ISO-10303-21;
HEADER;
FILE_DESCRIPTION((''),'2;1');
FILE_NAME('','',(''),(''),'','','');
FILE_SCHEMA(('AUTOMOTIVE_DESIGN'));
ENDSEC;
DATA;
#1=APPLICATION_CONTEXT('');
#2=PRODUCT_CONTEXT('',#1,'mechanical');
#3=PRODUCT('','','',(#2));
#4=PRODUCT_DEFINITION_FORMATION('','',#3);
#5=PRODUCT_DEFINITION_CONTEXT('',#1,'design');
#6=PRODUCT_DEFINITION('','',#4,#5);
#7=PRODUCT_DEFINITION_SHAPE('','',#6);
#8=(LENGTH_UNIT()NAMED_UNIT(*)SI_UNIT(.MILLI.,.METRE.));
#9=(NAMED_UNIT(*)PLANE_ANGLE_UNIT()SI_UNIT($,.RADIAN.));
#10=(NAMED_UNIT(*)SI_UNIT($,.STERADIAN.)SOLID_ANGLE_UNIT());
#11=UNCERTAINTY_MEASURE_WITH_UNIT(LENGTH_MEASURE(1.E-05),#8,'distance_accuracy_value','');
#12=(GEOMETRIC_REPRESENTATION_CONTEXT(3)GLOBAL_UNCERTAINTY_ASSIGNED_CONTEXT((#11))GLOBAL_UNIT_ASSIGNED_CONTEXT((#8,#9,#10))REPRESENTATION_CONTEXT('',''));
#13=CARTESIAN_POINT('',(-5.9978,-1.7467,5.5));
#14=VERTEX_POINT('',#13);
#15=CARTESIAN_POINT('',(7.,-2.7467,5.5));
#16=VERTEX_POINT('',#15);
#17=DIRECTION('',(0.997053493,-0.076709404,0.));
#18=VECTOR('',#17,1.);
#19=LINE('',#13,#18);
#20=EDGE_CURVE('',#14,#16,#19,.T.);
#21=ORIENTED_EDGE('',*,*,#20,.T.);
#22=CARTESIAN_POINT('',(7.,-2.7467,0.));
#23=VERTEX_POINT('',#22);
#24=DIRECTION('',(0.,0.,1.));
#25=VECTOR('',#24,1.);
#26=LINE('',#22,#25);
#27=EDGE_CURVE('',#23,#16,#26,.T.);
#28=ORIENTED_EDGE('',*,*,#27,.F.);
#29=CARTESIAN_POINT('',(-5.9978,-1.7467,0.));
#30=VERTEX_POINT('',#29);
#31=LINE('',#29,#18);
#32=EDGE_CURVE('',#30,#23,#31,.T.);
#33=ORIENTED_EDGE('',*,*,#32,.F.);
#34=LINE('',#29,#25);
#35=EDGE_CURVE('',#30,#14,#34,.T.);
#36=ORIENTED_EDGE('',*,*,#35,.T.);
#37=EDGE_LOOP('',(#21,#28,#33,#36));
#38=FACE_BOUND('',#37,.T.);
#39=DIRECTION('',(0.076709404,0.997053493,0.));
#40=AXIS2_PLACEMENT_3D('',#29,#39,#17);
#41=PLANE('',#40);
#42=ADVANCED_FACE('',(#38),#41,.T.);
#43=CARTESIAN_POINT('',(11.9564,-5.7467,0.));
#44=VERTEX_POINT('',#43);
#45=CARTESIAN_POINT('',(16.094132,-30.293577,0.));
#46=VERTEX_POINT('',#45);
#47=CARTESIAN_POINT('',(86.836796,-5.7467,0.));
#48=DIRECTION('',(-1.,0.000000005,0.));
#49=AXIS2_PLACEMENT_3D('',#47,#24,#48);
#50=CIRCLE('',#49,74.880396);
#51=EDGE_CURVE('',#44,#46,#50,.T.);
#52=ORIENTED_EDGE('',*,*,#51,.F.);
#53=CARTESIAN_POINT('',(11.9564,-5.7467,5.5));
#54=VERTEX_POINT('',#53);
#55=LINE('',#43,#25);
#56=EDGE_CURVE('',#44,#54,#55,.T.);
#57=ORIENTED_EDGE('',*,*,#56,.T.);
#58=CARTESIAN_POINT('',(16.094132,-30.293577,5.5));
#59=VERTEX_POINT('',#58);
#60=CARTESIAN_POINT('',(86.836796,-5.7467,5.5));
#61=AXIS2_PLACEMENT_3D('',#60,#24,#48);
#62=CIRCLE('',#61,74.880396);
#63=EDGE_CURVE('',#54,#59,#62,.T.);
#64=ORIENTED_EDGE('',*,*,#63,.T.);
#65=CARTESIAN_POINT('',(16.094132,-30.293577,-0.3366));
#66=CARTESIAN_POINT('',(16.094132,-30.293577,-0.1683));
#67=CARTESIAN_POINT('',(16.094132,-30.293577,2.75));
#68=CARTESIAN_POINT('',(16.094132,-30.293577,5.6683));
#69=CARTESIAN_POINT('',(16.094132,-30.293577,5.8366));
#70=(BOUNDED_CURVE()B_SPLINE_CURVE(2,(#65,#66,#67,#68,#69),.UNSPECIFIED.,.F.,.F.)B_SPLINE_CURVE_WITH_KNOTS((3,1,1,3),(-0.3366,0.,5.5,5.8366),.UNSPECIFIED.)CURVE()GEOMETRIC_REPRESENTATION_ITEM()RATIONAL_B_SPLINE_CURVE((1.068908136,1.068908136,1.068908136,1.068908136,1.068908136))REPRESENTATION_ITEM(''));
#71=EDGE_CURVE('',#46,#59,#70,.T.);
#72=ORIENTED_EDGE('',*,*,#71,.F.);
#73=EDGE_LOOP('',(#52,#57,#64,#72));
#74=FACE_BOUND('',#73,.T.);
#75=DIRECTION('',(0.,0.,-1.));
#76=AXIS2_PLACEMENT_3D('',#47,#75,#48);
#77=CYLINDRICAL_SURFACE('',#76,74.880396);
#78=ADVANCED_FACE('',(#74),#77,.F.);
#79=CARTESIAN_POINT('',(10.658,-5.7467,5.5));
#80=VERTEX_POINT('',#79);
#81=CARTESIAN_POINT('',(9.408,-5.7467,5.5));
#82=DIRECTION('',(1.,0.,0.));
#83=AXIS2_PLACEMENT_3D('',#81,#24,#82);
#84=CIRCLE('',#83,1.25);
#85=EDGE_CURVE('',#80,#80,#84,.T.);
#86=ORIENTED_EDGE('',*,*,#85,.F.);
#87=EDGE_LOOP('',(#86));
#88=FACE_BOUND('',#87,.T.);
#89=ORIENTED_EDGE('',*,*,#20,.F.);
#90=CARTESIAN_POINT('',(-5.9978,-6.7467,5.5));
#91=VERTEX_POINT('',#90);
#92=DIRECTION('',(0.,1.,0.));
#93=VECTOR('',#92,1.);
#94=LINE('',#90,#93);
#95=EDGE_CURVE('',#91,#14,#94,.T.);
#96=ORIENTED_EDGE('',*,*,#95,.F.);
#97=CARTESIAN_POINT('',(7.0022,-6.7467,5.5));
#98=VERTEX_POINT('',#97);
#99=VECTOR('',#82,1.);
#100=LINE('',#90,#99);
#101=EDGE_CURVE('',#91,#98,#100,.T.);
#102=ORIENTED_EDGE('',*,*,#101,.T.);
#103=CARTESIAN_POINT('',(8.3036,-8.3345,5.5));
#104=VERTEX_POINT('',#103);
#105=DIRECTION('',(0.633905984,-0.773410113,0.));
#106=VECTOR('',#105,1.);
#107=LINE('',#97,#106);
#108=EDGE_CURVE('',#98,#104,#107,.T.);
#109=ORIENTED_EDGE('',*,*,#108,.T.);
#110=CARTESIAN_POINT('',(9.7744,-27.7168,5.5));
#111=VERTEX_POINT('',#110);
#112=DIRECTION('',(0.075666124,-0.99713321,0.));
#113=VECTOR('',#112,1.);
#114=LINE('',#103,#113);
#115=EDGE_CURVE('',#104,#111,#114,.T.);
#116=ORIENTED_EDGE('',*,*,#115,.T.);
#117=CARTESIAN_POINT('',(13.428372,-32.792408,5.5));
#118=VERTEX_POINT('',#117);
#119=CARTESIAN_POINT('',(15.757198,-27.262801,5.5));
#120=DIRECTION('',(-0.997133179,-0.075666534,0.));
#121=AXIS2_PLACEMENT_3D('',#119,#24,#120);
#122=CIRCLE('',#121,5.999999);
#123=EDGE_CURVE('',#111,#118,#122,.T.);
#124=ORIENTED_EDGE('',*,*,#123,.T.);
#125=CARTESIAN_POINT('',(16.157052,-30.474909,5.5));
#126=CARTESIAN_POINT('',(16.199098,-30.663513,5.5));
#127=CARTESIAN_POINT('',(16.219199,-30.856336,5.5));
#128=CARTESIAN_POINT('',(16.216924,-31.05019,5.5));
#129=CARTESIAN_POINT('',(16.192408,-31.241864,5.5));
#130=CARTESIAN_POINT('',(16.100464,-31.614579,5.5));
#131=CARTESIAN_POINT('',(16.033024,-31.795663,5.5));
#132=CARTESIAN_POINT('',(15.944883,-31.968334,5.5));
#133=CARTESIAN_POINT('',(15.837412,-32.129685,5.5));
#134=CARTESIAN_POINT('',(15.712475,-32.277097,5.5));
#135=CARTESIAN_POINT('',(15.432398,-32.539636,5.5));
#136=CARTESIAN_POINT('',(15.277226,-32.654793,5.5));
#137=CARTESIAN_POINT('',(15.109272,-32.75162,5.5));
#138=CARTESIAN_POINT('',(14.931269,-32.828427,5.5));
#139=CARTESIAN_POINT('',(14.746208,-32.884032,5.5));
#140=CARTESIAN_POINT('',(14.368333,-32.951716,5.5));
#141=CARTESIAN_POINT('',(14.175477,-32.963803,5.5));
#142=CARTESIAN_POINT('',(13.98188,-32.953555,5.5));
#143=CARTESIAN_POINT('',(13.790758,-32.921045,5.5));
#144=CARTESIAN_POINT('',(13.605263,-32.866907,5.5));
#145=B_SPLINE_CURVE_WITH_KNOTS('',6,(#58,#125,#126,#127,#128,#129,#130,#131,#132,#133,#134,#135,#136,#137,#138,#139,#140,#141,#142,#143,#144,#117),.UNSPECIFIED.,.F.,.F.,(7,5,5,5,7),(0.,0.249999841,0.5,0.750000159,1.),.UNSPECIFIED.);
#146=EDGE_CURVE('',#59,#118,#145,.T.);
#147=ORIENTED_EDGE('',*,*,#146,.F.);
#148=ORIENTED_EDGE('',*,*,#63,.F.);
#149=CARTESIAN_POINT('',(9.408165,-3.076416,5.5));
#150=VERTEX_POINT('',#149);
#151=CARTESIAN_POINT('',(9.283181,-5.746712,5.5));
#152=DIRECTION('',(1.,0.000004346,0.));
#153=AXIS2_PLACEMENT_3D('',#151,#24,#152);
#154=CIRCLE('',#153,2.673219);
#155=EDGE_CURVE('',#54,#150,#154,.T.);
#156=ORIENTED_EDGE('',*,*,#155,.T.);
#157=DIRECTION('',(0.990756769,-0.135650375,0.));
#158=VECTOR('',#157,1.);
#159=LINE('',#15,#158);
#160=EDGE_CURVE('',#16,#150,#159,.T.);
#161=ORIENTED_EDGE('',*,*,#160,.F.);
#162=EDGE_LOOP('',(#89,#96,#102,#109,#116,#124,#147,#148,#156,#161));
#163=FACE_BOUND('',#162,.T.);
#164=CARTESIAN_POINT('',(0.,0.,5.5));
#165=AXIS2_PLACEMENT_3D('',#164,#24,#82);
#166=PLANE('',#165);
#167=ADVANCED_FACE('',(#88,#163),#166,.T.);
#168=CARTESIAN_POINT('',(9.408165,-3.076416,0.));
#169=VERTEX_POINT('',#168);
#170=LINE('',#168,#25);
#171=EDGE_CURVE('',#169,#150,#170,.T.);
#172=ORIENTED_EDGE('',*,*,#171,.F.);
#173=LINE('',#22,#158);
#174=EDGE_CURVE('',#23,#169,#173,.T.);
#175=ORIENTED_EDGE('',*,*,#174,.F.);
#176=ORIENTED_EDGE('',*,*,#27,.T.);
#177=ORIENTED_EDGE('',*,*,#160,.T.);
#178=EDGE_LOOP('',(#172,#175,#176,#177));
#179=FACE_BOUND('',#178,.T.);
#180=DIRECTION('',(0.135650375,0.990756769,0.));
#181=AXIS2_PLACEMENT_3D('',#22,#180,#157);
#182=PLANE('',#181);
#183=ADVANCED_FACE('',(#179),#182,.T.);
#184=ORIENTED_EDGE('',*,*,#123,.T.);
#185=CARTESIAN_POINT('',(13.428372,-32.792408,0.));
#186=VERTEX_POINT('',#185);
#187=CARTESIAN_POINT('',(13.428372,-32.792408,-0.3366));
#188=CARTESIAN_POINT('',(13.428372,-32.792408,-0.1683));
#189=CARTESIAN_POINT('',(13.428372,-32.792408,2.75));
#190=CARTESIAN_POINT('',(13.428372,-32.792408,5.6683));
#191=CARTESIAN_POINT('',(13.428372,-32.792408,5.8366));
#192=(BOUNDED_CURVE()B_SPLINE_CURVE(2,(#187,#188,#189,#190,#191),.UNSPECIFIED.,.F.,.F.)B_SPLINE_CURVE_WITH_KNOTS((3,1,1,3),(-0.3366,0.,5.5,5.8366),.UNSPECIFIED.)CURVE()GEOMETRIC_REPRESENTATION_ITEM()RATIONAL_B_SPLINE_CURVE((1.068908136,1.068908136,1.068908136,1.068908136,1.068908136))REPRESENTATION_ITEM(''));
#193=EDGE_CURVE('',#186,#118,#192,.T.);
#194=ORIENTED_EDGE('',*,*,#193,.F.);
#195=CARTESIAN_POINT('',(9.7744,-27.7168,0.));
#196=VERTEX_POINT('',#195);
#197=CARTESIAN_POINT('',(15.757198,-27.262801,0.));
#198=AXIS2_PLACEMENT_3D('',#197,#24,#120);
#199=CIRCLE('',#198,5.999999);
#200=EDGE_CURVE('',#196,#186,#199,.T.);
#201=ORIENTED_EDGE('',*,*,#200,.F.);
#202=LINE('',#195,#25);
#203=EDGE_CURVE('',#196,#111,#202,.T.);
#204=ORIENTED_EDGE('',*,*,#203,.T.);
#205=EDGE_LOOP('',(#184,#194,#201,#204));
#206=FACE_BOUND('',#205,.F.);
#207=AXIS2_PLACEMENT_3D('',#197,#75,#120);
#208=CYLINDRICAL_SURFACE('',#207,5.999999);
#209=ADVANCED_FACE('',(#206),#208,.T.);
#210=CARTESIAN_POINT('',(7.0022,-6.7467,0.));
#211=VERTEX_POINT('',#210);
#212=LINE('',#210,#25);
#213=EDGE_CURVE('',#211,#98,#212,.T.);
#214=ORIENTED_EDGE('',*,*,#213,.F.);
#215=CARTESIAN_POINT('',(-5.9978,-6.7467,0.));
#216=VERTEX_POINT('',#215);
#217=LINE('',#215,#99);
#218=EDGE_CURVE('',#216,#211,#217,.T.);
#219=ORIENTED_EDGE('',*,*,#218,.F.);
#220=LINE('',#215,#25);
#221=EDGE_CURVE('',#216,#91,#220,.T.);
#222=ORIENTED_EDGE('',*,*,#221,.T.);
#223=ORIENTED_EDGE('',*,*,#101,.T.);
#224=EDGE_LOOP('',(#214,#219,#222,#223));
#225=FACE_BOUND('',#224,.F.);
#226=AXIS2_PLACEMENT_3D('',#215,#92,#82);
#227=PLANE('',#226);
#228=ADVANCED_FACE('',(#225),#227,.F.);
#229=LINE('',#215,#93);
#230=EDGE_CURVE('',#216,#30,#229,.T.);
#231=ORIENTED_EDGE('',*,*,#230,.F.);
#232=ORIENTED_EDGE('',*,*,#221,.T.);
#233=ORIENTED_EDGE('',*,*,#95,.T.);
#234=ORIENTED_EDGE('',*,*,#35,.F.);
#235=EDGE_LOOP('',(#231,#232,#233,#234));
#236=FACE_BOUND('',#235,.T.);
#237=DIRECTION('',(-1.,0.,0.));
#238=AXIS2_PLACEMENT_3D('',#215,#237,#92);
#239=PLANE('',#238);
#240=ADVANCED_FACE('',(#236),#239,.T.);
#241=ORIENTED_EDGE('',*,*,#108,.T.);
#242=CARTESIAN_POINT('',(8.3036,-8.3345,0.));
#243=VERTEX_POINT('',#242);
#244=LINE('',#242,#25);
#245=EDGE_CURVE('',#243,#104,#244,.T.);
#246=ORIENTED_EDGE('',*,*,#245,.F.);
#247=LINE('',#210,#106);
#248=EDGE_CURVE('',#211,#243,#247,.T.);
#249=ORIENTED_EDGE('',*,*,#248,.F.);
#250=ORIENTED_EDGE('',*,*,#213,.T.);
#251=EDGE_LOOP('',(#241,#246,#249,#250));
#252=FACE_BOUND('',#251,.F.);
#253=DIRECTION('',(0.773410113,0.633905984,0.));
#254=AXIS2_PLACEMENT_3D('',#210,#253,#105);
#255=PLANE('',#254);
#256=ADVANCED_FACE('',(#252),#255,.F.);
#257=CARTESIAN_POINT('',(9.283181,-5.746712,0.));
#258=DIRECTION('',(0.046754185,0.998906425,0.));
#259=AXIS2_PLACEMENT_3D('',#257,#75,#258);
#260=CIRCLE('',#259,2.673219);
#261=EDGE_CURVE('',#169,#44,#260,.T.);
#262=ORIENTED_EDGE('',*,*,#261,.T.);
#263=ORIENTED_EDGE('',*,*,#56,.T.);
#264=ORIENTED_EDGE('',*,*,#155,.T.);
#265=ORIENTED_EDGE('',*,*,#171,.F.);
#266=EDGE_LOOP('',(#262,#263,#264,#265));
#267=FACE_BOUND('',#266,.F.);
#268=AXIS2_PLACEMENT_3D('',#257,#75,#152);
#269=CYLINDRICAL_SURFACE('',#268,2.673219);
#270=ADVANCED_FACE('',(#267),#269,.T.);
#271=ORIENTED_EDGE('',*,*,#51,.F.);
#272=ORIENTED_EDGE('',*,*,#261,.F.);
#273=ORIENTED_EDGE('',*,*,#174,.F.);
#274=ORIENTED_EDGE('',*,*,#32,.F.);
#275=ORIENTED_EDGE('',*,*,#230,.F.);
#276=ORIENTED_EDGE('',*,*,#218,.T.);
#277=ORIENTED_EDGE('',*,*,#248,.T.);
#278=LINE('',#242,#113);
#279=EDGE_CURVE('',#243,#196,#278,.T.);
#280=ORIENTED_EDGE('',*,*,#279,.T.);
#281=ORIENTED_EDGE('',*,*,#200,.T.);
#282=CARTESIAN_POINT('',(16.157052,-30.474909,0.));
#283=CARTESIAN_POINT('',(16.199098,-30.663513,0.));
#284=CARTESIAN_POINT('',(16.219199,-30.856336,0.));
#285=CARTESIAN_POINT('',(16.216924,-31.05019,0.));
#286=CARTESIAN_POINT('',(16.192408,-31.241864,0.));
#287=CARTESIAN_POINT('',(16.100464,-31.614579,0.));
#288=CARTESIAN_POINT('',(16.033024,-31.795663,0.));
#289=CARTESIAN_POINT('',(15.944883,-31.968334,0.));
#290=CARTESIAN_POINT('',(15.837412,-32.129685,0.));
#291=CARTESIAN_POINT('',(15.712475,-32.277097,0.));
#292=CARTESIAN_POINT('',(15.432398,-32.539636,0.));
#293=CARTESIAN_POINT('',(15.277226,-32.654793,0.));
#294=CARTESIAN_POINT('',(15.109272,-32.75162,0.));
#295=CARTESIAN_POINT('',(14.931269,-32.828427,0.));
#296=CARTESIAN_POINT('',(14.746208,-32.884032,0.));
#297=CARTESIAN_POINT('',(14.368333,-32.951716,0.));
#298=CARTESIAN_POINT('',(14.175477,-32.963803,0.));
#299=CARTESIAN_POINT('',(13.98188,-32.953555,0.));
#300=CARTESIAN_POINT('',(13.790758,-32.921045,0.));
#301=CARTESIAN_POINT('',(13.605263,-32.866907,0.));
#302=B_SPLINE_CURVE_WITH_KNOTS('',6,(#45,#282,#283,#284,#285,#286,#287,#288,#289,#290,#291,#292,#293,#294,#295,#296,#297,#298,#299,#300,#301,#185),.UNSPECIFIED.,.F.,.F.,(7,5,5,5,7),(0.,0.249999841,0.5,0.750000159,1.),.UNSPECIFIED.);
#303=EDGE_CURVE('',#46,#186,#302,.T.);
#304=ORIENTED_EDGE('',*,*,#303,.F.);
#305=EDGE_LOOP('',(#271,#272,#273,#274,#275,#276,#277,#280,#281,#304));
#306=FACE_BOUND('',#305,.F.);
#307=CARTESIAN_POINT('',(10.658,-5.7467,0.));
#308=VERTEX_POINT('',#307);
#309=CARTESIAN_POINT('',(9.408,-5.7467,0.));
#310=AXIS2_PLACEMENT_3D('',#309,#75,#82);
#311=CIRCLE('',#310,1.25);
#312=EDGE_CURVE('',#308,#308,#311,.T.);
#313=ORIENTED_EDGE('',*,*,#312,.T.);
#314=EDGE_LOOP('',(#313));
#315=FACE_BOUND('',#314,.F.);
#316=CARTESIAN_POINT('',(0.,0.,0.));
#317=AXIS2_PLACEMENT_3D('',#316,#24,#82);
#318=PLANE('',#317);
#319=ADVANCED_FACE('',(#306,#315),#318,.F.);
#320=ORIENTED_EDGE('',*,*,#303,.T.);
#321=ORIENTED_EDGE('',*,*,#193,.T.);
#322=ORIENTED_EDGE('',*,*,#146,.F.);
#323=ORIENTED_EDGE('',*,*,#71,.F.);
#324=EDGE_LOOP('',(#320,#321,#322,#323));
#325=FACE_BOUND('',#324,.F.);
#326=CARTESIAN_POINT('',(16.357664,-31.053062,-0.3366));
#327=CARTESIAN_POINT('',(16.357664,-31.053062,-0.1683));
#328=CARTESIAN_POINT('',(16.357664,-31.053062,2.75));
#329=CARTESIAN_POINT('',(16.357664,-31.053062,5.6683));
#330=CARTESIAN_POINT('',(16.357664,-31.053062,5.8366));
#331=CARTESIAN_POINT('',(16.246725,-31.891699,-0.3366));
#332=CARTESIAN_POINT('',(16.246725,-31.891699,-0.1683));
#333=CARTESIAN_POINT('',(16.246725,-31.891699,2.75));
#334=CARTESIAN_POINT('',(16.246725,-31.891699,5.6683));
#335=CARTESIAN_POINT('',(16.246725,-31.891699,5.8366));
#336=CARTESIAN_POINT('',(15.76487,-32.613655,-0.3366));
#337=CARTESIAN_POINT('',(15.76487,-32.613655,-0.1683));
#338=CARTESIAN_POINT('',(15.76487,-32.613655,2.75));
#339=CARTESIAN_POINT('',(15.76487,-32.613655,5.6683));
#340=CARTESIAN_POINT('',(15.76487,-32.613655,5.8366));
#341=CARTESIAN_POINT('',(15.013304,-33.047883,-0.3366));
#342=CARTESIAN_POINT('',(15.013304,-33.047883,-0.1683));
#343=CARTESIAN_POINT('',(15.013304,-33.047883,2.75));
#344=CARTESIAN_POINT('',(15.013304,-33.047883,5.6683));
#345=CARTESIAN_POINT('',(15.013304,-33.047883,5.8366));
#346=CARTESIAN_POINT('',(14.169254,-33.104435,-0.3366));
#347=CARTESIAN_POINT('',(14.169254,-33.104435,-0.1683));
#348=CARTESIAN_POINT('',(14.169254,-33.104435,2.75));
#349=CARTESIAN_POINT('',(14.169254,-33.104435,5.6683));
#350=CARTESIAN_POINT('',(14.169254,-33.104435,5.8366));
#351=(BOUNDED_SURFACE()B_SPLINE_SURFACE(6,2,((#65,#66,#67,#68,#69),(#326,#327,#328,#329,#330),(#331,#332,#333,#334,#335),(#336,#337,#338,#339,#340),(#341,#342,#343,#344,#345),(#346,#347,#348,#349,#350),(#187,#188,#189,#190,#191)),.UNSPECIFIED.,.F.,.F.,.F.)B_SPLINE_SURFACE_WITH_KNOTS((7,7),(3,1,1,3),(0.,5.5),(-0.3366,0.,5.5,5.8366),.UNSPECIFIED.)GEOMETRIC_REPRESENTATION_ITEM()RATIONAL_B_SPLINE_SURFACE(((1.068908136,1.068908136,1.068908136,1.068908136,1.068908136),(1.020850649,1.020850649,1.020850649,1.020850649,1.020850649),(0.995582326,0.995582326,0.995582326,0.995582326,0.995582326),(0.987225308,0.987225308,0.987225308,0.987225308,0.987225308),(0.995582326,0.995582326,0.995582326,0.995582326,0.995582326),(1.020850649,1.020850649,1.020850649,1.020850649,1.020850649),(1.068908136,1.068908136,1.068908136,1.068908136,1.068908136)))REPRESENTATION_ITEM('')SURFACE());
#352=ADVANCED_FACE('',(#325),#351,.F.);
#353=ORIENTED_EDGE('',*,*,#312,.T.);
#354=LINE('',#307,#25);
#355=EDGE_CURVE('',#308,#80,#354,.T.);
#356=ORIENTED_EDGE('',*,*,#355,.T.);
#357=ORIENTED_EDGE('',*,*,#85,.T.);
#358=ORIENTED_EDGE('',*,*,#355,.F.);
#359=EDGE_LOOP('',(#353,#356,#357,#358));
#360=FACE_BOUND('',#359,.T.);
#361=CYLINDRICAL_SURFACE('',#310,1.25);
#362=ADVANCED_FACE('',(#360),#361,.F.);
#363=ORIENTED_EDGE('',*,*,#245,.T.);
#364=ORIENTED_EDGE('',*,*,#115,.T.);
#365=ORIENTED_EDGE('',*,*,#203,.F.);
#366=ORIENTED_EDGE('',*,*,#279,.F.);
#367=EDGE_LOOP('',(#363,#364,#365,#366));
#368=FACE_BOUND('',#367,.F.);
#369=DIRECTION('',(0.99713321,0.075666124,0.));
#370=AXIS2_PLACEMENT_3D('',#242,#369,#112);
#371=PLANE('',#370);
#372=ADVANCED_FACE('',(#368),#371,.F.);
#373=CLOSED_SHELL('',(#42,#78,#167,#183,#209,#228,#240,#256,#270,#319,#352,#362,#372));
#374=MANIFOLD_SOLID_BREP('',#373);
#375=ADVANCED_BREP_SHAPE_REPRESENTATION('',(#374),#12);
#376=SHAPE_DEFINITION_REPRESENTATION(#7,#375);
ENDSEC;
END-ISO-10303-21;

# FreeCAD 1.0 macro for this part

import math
import FreeCAD as App
import Part
import Sketcher

V = App.Vector
Q = App.Units.Quantity


def edges_at(feature, points):
    """Names of the edges that pass closest to the given points."""
    edges = feature.Shape.Edges
    near = lambda p: min(range(len(edges)), key=lambda i: edges[i].distToShape(Part.Vertex(*p))[0])
    return sorted({f"Edge{near(p) + 1}" for p in points})

doc = App.newDocument("Part")
params = doc.addObject("Spreadsheet::Sheet", "Params")
for row, (alias, value) in enumerate([
    ("sketch1_radius", "6 mm"),
    ("sketch1_diameter", "2.5 mm"),
    ("sketch1_height", "5 mm"),
    ("sketch1_width", "13 mm"),
    ("pad1_length", "5.5 mm"),
    ("fillet_radius", "2 mm"),
], start=1):
    params.set(f"A{row}", alias)
    params.set(f"B{row}", "=" + value)
    params.setAlias(f"B{row}", alias)

body = doc.addObject("PartDesign::Body", "Body")

sketch1 = body.newObject("Sketcher::SketchObject", "Sketch")
sketch1.AttachmentSupport = (doc.getObject("XY_Plane"), [""])
sketch1.MapMode = "FlatFace"
sketch1.addGeometry([
    Part.ArcOfCircle(Part.Circle(V(86.8368, -5.7467, 0), V(0, 0, 1), 74.8804), math.radians(180), math.radians(201.559505)),
    Part.ArcOfCircle(Part.Circle(V(9.2832, -5.7467, 0), V(0, 0, 1), 2.6732), math.radians(0), math.radians(87.320597)),
    Part.LineSegment(V(9.408165, -3.076416, 0), V(7, -2.7467, 0)),
    Part.LineSegment(V(7, -2.7467, 0), V(-5.9978, -1.7467, 0)),
    Part.LineSegment(V(-5.9978, -1.7467, 0), V(-5.9978, -6.7467, 0)),
    Part.LineSegment(V(-5.9978, -6.7467, 0), V(7.0022, -6.7467, 0)),
    Part.LineSegment(V(7.0022, -6.7467, 0), V(8.3036, -8.3345, 0)),
    Part.LineSegment(V(8.3036, -8.3345, 0), V(9.7744, -27.7168, 0)),
    Part.ArcOfCircle(Part.Circle(V(15.7572, -27.2628, 0), V(0, 0, 1), 6.000001), math.radians(-175.660472), math.radians(-90)),
    Part.LineSegment(V(15.7572, -33.2628, 0), V(17.1953, -33.2628, 0)),
    Part.Circle(V(9.408, -5.7467, 0), V(0, 0, 1), 1.25),
], False)
sketch1.addConstraint([
    Sketcher.Constraint("Tangent", 0, 1, 1, 1),
    Sketcher.Constraint("Coincident", 1, 2, 2, 1),
    Sketcher.Constraint("Coincident", 2, 2, 3, 1),
    Sketcher.Constraint("Coincident", 3, 2, 4, 1),
    Sketcher.Constraint("Coincident", 4, 2, 5, 1),
    Sketcher.Constraint("Coincident", 5, 2, 6, 1),
    Sketcher.Constraint("Coincident", 6, 2, 7, 1),
    Sketcher.Constraint("Tangent", 7, 2, 8, 1),
    Sketcher.Constraint("Tangent", 8, 2, 9, 1),
    Sketcher.Constraint("Coincident", 9, 2, 0, 2),
    Sketcher.Constraint("Vertical", 4),
    Sketcher.Constraint("Horizontal", 5),
    Sketcher.Constraint("Horizontal", 9),
    Sketcher.Constraint("Horizontal", 0, 3, 1, 3),
    Sketcher.Constraint("Horizontal", 1, 3, 10, 3),
    Sketcher.Constraint("Vertical", 10, 3, 1, 2),
    Sketcher.Constraint("Radius", 8, Q("6 mm")),
    Sketcher.Constraint("Diameter", 10, Q("2.5 mm")),
    Sketcher.Constraint("DistanceY", 4, 2, 4, 1, Q("5 mm")),
    Sketcher.Constraint("DistanceX", -1, 1, 2, 2, Q("7 mm")),
    Sketcher.Constraint("DistanceX", 5, 1, 5, 2, Q("13 mm")),
    Sketcher.Constraint("Angle", 3, Q("175.6006 deg")),
    Sketcher.Constraint("DistanceY", 1, 3, 2, 2, Q("3 mm")),
    Sketcher.Constraint("DistanceY", 2, 2, 3, 2, Q("1 mm")),
    Sketcher.Constraint("Angle", 6, Q("-50.661 deg")),
    Sketcher.Constraint("Angle", 7, Q("-85.6605 deg")),
    Sketcher.Constraint("Radius", 0, Q("74.8804 mm")),
    Sketcher.Constraint("Radius", 1, Q("2.6732 mm")),
    Sketcher.Constraint("DistanceX", 9, 1, 9, 2, Q("1.438 mm")),
    Sketcher.Constraint("DistanceY", 7, 2, 5, 2, Q("20.97 mm")),
    Sketcher.Constraint("Distance", 6, Q("2.053 mm")),
    Sketcher.Constraint("DistanceX", -1, 1, 10, 3, Q("9.408 mm")),
    Sketcher.Constraint("DistanceY", 0, 3, -1, 1, Q("5.7467 mm")),
])
sketch1.setExpression("Constraints[16]", "Params.sketch1_radius")
sketch1.setExpression("Constraints[17]", "Params.sketch1_diameter")
sketch1.setExpression("Constraints[18]", "Params.sketch1_height")
sketch1.setExpression("Constraints[20]", "Params.sketch1_width")
pad1 = body.newObject("PartDesign::Pad", "Pad")
pad1.Profile = sketch1
pad1.setExpression("Length", "Params.pad1_length")
doc.recompute()

fillet = body.newObject("PartDesign::Fillet", "Fillet")
fillet.Base = (pad1, edges_at(pad1, [(17.195, -33.263, 2.75)]))
fillet.setExpression("Radius", "Params.fillet_radius")

doc.recompute()
